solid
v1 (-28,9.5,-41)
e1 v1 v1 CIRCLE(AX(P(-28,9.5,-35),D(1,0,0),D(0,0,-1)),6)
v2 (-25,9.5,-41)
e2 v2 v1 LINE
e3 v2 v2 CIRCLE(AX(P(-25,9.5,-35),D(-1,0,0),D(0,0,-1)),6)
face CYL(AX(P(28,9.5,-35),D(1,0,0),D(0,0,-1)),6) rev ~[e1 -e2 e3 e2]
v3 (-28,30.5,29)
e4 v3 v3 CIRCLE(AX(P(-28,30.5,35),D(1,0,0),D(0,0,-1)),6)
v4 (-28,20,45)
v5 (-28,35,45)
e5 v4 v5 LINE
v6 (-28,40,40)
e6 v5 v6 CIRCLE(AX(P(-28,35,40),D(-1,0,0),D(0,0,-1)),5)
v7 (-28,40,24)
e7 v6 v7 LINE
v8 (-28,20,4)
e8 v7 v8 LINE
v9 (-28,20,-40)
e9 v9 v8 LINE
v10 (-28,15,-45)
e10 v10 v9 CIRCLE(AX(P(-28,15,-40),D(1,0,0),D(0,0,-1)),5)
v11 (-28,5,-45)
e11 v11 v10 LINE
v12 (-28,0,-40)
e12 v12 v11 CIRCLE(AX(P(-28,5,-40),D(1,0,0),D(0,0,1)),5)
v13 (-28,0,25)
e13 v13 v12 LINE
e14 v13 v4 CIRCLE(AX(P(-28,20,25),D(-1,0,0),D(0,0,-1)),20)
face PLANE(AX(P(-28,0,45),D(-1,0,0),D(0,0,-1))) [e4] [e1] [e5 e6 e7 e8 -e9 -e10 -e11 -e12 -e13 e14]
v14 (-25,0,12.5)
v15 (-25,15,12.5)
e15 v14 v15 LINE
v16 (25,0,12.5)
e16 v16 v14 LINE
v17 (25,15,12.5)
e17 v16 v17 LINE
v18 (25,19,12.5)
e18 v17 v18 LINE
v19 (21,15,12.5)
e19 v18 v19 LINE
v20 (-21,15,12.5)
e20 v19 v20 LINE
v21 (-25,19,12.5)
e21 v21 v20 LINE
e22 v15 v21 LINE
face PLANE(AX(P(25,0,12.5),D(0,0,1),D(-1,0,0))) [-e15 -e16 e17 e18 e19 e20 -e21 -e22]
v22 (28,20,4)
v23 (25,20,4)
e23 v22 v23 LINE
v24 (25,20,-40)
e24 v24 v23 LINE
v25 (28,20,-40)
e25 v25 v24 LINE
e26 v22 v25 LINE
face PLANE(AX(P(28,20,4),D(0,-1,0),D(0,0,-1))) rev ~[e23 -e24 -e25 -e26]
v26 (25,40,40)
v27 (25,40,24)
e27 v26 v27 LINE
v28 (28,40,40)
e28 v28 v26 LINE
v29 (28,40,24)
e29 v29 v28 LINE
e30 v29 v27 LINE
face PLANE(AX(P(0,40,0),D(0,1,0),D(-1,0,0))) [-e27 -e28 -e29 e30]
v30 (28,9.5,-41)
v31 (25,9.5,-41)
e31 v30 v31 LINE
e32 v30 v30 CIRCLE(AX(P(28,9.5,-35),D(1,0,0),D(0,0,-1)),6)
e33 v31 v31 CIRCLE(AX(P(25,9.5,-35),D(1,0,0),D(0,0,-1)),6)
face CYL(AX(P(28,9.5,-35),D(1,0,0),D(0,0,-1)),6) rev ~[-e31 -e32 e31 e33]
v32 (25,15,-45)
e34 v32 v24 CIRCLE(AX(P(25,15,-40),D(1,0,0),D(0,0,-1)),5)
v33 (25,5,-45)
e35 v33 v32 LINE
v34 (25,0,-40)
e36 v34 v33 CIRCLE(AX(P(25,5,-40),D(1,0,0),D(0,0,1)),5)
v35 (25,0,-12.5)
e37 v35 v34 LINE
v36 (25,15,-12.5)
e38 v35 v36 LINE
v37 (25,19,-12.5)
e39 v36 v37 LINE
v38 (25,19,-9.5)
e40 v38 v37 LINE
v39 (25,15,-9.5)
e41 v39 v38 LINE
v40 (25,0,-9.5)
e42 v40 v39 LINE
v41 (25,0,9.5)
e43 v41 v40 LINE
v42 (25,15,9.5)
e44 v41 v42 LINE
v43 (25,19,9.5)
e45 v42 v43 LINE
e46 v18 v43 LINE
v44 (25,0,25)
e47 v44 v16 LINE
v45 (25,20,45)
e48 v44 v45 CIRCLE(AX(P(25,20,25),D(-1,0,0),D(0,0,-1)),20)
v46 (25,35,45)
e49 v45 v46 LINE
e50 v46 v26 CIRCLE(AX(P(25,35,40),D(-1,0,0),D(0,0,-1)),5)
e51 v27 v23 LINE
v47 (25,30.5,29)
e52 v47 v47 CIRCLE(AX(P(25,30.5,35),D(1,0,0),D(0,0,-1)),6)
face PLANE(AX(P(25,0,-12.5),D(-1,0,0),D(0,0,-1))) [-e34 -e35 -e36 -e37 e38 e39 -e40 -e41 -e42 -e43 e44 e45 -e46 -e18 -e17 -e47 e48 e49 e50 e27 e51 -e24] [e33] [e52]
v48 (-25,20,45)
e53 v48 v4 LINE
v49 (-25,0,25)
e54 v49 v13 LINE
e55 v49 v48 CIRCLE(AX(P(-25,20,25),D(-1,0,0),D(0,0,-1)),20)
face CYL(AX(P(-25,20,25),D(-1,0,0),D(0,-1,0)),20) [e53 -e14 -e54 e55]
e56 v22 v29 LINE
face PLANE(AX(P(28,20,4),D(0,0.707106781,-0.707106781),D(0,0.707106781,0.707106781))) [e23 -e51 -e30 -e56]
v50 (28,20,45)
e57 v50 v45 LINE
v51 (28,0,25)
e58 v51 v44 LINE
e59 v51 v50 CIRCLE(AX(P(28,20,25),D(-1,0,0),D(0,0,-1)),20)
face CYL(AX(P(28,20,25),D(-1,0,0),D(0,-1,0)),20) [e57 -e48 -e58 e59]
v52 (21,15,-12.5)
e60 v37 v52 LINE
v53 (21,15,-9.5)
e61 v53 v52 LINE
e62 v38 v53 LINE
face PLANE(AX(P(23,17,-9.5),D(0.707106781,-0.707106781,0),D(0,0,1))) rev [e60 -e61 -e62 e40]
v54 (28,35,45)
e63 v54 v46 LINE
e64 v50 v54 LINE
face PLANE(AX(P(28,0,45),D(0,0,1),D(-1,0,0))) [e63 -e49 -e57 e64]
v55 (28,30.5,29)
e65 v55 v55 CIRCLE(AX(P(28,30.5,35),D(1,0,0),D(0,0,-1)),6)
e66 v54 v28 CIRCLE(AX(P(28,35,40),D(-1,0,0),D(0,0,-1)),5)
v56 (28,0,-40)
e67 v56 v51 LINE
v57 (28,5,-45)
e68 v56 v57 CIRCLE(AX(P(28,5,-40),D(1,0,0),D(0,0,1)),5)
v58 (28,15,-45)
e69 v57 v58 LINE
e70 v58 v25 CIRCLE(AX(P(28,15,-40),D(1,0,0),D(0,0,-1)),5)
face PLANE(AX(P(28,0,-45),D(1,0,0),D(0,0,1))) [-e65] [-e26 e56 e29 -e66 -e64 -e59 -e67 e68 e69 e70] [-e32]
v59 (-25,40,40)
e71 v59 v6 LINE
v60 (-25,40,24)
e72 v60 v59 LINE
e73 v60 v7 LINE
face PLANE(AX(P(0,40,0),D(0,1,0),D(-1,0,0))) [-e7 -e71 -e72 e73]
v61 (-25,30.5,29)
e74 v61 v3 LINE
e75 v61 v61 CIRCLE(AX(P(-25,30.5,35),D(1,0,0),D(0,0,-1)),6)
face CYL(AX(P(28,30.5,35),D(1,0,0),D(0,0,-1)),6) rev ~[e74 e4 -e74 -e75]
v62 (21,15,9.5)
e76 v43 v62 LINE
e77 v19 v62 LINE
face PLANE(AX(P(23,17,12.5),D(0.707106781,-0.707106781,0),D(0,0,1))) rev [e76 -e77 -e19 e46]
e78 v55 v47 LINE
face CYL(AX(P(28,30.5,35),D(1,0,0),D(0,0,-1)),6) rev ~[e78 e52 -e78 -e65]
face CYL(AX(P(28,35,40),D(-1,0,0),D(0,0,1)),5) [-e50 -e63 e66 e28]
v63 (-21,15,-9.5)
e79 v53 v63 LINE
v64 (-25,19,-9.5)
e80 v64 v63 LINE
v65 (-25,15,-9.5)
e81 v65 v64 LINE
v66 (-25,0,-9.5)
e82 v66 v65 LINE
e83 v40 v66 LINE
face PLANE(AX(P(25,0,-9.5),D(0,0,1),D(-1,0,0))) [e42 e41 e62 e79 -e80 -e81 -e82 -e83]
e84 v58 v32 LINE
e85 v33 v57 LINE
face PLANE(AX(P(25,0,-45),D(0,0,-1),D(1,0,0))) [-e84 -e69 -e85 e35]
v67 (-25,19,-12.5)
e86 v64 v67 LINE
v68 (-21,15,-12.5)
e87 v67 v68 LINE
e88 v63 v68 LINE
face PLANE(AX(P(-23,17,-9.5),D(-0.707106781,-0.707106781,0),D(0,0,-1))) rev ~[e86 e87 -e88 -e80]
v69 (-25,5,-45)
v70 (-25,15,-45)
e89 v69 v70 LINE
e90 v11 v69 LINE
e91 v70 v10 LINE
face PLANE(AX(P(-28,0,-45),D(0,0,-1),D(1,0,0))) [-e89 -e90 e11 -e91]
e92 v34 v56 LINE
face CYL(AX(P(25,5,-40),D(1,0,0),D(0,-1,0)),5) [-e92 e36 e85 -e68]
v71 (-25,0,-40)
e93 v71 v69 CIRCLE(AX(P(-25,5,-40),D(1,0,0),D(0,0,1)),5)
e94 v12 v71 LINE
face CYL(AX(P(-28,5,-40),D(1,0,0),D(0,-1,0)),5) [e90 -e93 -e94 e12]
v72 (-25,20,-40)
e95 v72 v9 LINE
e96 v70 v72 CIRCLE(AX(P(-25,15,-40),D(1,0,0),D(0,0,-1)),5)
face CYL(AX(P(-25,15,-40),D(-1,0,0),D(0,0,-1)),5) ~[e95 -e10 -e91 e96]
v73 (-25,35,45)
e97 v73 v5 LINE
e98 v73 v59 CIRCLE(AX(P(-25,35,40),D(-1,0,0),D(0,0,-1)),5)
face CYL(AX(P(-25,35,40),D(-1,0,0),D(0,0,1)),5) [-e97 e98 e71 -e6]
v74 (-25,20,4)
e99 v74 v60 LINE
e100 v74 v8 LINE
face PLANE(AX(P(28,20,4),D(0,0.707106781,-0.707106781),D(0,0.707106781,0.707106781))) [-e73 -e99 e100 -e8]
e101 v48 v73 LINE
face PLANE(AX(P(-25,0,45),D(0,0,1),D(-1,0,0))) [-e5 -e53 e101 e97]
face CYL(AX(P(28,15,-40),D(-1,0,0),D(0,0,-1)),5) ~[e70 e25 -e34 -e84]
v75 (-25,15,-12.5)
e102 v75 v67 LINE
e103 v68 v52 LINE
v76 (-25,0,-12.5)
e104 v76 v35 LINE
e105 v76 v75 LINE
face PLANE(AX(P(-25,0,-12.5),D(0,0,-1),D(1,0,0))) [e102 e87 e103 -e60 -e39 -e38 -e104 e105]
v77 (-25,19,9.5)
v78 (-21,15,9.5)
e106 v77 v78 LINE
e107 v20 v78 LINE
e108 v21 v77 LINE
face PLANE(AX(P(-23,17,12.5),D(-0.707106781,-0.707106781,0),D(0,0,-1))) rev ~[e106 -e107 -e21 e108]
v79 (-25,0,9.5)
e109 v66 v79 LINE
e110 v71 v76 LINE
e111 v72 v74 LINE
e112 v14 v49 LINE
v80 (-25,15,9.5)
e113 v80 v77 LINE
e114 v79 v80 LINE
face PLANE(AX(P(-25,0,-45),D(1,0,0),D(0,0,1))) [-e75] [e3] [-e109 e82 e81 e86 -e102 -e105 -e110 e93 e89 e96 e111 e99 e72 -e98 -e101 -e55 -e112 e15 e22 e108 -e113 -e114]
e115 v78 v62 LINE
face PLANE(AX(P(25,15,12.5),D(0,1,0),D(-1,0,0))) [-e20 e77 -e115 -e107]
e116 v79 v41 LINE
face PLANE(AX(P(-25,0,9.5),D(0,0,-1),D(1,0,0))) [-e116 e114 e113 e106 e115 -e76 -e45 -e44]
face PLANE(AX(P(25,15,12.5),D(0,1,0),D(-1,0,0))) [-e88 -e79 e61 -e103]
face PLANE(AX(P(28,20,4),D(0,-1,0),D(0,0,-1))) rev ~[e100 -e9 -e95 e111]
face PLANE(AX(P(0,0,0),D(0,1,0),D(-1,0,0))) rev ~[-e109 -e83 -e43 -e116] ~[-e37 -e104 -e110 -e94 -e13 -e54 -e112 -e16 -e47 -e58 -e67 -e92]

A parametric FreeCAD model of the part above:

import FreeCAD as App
import Part
import Sketcher

V = App.Vector
Q = App.Units.Quantity


def edges_at(feature, points):
    """Names of the edges that pass closest to the given points."""
    edges = feature.Shape.Edges
    near = lambda p: min(range(len(edges)), key=lambda i: edges[i].distToShape(Part.Vertex(*p))[0])
    return sorted({f"Edge{near(p) + 1}" for p in points})


def add_polygon(sketch, points):
    """Adds a closed chain of lines whose ends are joined by coincident constraints."""
    first, n = sketch.GeometryCount, len(points)
    for a, b in zip(points, points[1:] + points[:1]):
        sketch.addGeometry(Part.LineSegment(App.Vector(*a, 0), App.Vector(*b, 0)), False)
    for i in range(n):
        sketch.addConstraint(Sketcher.Constraint("Coincident", first + i, 2, first + (i + 1) % n, 1))

doc = App.newDocument("Part")
body = doc.addObject("PartDesign::Body", "Body")

# Sketch on XZ plane
sketch1 = body.newObject("Sketcher::SketchObject", "Sketch")
sketch1.AttachmentSupport = (doc.getObject("XZ_Plane"), [""])
sketch1.MapMode = "FlatFace"
add_polygon(sketch1, [(28, -45), (25, -45), (25, -12.5), (-25, -12.5), (-25, -45), (-28, -45), (-28, 45), (-25, 45), (-25, 12.5), (25, 12.5), (25, 45), (28, 45)])  # lines 0-11
add_polygon(sketch1, [(25, -9.5), (25, 9.5), (-25, 9.5), (-25, -9.5)])  # lines 12-15
sketch1.addConstraint([
    Sketcher.Constraint("Horizontal", 0),
    Sketcher.Constraint("Vertical", 1),
    Sketcher.Constraint("Horizontal", 2),
    Sketcher.Constraint("Vertical", 3),
    Sketcher.Constraint("Horizontal", 4),
    Sketcher.Constraint("Vertical", 5),
    Sketcher.Constraint("Horizontal", 6),
    Sketcher.Constraint("Vertical", 7),
    Sketcher.Constraint("Horizontal", 8),
    Sketcher.Constraint("Vertical", 9),
    Sketcher.Constraint("Horizontal", 10),
    Sketcher.Constraint("Vertical", 11),
    Sketcher.Constraint("Vertical", 12),
    Sketcher.Constraint("Horizontal", 13),
    Sketcher.Constraint("Vertical", 14),
    Sketcher.Constraint("Horizontal", 15),
    Sketcher.Constraint("Symmetric", 0, 2, 6, 2, -1, 1),
    Sketcher.Constraint("Symmetric", 2, 2, 8, 2, -1, 1),
    Sketcher.Constraint("Symmetric", 4, 2, 10, 2, -1, 1),
    Sketcher.Constraint("Symmetric", 12, 2, 14, 2, -1, 1),
    Sketcher.Constraint("Symmetric", 0, 2, 3, 2, -2),
    Sketcher.Constraint("Vertical", 9, 2, 12, 2),
    Sketcher.Constraint("DistanceX", 0, 2, 0, 1, Q("3 mm")),
    Sketcher.Constraint("DistanceX", 2, 2, 2, 1, Q("50 mm")),
    Sketcher.Constraint("DistanceY", 5, 1, 5, 2, Q("90 mm")),
    Sketcher.Constraint("DistanceY", 2, 2, 7, 2, Q("25 mm")),
    Sketcher.Constraint("DistanceY", 12, 2, 8, 2, Q("3 mm")),
])
pad1 = body.newObject("PartDesign::Pad", "Pad")
pad1.Profile = sketch1
pad1.Length = 40
pad1.Reversed = True

# Sketch on YZ plane
sketch2 = body.newObject("Sketcher::SketchObject", "Sketch001")
sketch2.AttachmentSupport = (doc.getObject("YZ_Plane"), [""])
sketch2.MapMode = "FlatFace"
sketch2.AttachmentOffset = App.Placement(V(0, 0, 28), App.Rotation())
add_polygon(sketch2, [(20, 4), (20, -45), (40, -45), (40, 24)])  # lines 0-3
sketch2.addGeometry(Part.Circle(V(10, -35, 0), V(0, 0, 1), 6), False)  # 4
sketch2.addGeometry(Part.Circle(V(30, 35, 0), V(0, 0, 1), 6), False)  # 5
sketch2.addConstraint([
    Sketcher.Constraint("Vertical", 0),
    Sketcher.Constraint("Horizontal", 1),
    Sketcher.Constraint("Vertical", 2),
    Sketcher.Constraint("Equal", 4, 5),
    Sketcher.Constraint("Diameter", 4, Q("12 mm")),
    Sketcher.Constraint("DistanceX", 1, 1, 1, 2, Q("20 mm")),
    Sketcher.Constraint("DistanceX", -1, 1, 0, 2, Q("20 mm")),
    Sketcher.Constraint("DistanceX", 4, 3, 5, 3, Q("21 mm")),
    Sketcher.Constraint("DistanceY", 0, 2, 4, 3, Q("10 mm")),
    Sketcher.Constraint("DistanceY", 3, 2, 2, 2, Q("20 mm")),
    Sketcher.Constraint("DistanceX", -1, 1, 4, 3, Q("9.5 mm")),
    Sketcher.Constraint("DistanceY", 0, 2, 0, 1, Q("49 mm")),
    Sketcher.Constraint("DistanceY", 4, 3, -1, 1, Q("35 mm")),
    Sketcher.Constraint("DistanceY", -1, 1, 5, 3, Q("35 mm")),
])
pocket1 = body.newObject("PartDesign::Pocket", "Pocket")
pocket1.Profile = sketch2
pocket1.Type = "ThroughAll"

# Sketch on XY plane
sketch3 = body.newObject("Sketcher::SketchObject", "Sketch002")
sketch3.AttachmentSupport = (doc.getObject("XY_Plane"), [""])
sketch3.MapMode = "FlatFace"
sketch3.AttachmentOffset = App.Placement(V(0, 0, 12.5), App.Rotation())
add_polygon(sketch3, [(25, 15), (25, 28), (-25, 28), (-25, 15)])  # lines 0-3
sketch3.addConstraint([
    Sketcher.Constraint("Vertical", 0),
    Sketcher.Constraint("Horizontal", 1),
    Sketcher.Constraint("Vertical", 2),
    Sketcher.Constraint("Horizontal", 3),
    Sketcher.Constraint("DistanceX", -1, 1, 0, 2, Q("25 mm")),
    Sketcher.Constraint("DistanceX", 1, 2, -1, 1, Q("25 mm")),
    Sketcher.Constraint("DistanceY", 0, 1, 0, 2, Q("13.5 mm")),
    Sketcher.Constraint("DistanceY", -1, 1, 2, 2, Q("15 mm")),
])
pocket2 = body.newObject("PartDesign::Pocket", "Pocket001")
pocket2.Profile = sketch3
pocket2.Type = "ThroughAll"
doc.recompute()

fillet = body.newObject("PartDesign::Fillet", "Fillet")
fillet.Base = (pocket2, edges_at(pocket2, [(26.5, 0, 45), (-26.5, 0, 45)]))
fillet.Radius = 20
doc.recompute()

fillet2 = body.newObject("PartDesign::Fillet", "Fillet001")
fillet2.Base = (fillet, edges_at(fillet, [
    (26.5, 40, 45),
    (-26.5, 40, 45),
    (26.5, 20, -45),
    (26.5, 0, -45),
    (-26.5, 20, -45),
    (-26.5, 0, -45),
]))
fillet2.Radius = 5
doc.recompute()

chamfer = body.newObject("PartDesign::Chamfer", "Chamfer")
chamfer.Base = (fillet2, edges_at(fillet2, [
    (-25, 15, 11),
    (-25, 15, -11),
    (25, 15, -11),
    (25, 15, 11),
]))
chamfer.Size = 4

doc.recompute()
